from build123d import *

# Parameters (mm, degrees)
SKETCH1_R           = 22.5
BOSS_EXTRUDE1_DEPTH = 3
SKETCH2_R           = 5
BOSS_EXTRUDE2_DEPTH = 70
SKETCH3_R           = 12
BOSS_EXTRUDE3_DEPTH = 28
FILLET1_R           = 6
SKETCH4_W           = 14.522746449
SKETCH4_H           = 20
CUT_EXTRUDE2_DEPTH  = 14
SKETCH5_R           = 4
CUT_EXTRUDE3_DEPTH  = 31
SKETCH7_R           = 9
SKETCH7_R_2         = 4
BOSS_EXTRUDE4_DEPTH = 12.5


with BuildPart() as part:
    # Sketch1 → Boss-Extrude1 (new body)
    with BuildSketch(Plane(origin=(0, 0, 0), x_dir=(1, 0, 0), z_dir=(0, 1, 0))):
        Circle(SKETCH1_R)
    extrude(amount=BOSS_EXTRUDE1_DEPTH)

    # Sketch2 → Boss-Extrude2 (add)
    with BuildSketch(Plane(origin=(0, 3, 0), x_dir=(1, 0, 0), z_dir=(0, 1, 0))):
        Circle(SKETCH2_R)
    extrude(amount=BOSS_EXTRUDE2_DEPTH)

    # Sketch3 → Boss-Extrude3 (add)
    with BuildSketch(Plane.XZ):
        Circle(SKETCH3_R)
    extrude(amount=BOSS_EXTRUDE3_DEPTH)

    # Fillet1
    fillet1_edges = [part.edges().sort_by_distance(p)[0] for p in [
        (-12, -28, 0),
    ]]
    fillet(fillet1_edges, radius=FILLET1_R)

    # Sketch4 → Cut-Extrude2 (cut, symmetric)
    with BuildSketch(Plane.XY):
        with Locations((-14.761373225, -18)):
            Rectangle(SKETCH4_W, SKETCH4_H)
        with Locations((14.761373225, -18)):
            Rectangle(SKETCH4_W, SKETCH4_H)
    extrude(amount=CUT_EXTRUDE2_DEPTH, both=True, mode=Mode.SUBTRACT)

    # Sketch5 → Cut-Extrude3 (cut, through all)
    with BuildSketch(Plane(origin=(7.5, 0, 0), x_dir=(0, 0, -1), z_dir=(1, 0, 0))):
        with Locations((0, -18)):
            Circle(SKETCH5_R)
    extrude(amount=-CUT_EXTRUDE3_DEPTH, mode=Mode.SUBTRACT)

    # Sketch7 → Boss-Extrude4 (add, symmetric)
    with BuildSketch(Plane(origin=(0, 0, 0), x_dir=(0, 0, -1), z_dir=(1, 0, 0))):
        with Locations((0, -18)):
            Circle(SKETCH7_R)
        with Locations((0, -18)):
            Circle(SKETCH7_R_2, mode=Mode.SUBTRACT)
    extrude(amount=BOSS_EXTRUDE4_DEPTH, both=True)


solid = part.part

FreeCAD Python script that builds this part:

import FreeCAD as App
import Part
import Sketcher
Q = App.Units.Quantity


def edges_at(feature, points):
    """Names of the edges that pass closest to the given points."""
    edges = feature.Shape.Edges
    near = lambda p: min(range(len(edges)), key=lambda i: edges[i].distToShape(Part.Vertex(*p))[0])
    return sorted({f"Edge{near(p) + 1}" for p in points})

doc = App.newDocument("Part")
body = doc.addObject("PartDesign::Body", "Body")

sketch1 = doc.addObject("Sketcher::SketchObject", "Sketch")
body.addObject(sketch1)
sketch1.AttachmentSupport = (doc.XZ_Plane, [""])
sketch1.MapMode = "FlatFace"
sketch1.addGeometry(Part.Circle(App.Vector(0, 0, 0), App.Vector(0, 0, 1), 22), False)
sketch1.addConstraint(Sketcher.Constraint("Coincident", 0, 3, -1, 1))
sketch1.addConstraint(Sketcher.Constraint("Diameter", 0, Q("45 mm")))
pad1 = doc.addObject("PartDesign::Pad", "Pad")
body.addObject(pad1)
pad1.Profile = sketch1
pad1.Length = 3
pad1.Reversed = True

sketch2 = doc.addObject("Sketcher::SketchObject", "Sketch001")
body.addObject(sketch2)
sketch2.AttachmentSupport = (doc.XZ_Plane, [""])
sketch2.MapMode = "FlatFace"
sketch2.AttachmentOffset = App.Placement(App.Vector(0, 0, -3), App.Rotation())
sketch2.addGeometry(Part.Circle(App.Vector(0, 0, 0), App.Vector(0, 0, 1), 5), False)
sketch2.addConstraint(Sketcher.Constraint("Coincident", 0, 3, -1, 1))
sketch2.addConstraint(Sketcher.Constraint("Diameter", 0, Q("10 mm")))
pad2 = doc.addObject("PartDesign::Pad", "Pad001")
body.addObject(pad2)
pad2.Profile = sketch2
pad2.Length = 70
pad2.Reversed = True

sketch3 = doc.addObject("Sketcher::SketchObject", "Sketch002")
body.addObject(sketch3)
sketch3.AttachmentSupport = (doc.XZ_Plane, [""])
sketch3.MapMode = "FlatFace"
sketch3.addGeometry(Part.Circle(App.Vector(0, 0, 0), App.Vector(0, 0, 1), 12), False)
sketch3.addConstraint(Sketcher.Constraint("Coincident", 0, 3, -1, 1))
sketch3.addConstraint(Sketcher.Constraint("Diameter", 0, Q("24 mm")))
pad3 = doc.addObject("PartDesign::Pad", "Pad002")
body.addObject(pad3)
pad3.Profile = sketch3
pad3.Length = 28
doc.recompute()

fillet = doc.addObject("PartDesign::Fillet", "Fillet")
body.addObject(fillet)
fillet.Base = (pad3, edges_at(pad3, [(-12, -28, 0)]))
fillet.Radius = 6

sketch4 = doc.addObject("Sketcher::SketchObject", "Sketch003")
body.addObject(sketch4)
sketch4.AttachmentSupport = (doc.XY_Plane, [""])
sketch4.MapMode = "FlatFace"
sketch4.addGeometry(Part.LineSegment(App.Vector(-22, -8, 0), App.Vector(-22, -28, 0)), False)
sketch4.addGeometry(Part.LineSegment(App.Vector(-22, -28, 0), App.Vector(-8, -28, 0)), False)
sketch4.addGeometry(Part.LineSegment(App.Vector(-8, -28, 0), App.Vector(-8, -8, 0)), False)
sketch4.addGeometry(Part.LineSegment(App.Vector(-8, -8, 0), App.Vector(-22, -8, 0)), False)
sketch4.addGeometry(Part.LineSegment(App.Vector(8, -8, 0), App.Vector(8, -28, 0)), False)
sketch4.addGeometry(Part.LineSegment(App.Vector(8, -28, 0), App.Vector(22, -28, 0)), False)
sketch4.addGeometry(Part.LineSegment(App.Vector(22, -28, 0), App.Vector(22, -8, 0)), False)
sketch4.addGeometry(Part.LineSegment(App.Vector(22, -8, 0), App.Vector(8, -8, 0)), False)
sketch4.addConstraint(Sketcher.Constraint("Coincident", 0, 2, 1, 1))
sketch4.addConstraint(Sketcher.Constraint("Coincident", 1, 2, 2, 1))
sketch4.addConstraint(Sketcher.Constraint("Coincident", 2, 2, 3, 1))
sketch4.addConstraint(Sketcher.Constraint("Coincident", 3, 2, 0, 1))
sketch4.addConstraint(Sketcher.Constraint("Coincident", 4, 2, 5, 1))
sketch4.addConstraint(Sketcher.Constraint("Coincident", 5, 2, 6, 1))
sketch4.addConstraint(Sketcher.Constraint("Coincident", 6, 2, 7, 1))
sketch4.addConstraint(Sketcher.Constraint("Coincident", 7, 2, 4, 1))
sketch4.addConstraint(Sketcher.Constraint("Vertical", 0))
sketch4.addConstraint(Sketcher.Constraint("Horizontal", 1))
sketch4.addConstraint(Sketcher.Constraint("Vertical", 2))
sketch4.addConstraint(Sketcher.Constraint("Horizontal", 3))
sketch4.addConstraint(Sketcher.Constraint("Vertical", 4))
sketch4.addConstraint(Sketcher.Constraint("Horizontal", 5))
sketch4.addConstraint(Sketcher.Constraint("Vertical", 6))
sketch4.addConstraint(Sketcher.Constraint("Horizontal", 7))
sketch4.addConstraint(Sketcher.Constraint("Symmetric", 1, 2, 4, 2, -2))
sketch4.addConstraint(Sketcher.Constraint("Symmetric", 3, 2, 6, 2, -2))
sketch4.addConstraint(Sketcher.Constraint("DistanceY", 0, 2, 0, 1, Q("20 mm")))
sketch4.addConstraint(Sketcher.Constraint("DistanceY", 0, 2, -1, 1, Q("28 mm")))
sketch4.addConstraint(Sketcher.Constraint("DistanceX", 1, 2, 4, 2, Q("15 mm")))
sketch4.addConstraint(Sketcher.Constraint("DistanceX", 1, 1, 1, 2, Q("14.522746 mm")))
pocket1 = doc.addObject("PartDesign::Pocket", "Pocket")
body.addObject(pocket1)
pocket1.Profile = sketch4
pocket1.Length = 28
pocket1.Midplane = True

sketch5 = doc.addObject("Sketcher::SketchObject", "Sketch004")
body.addObject(sketch5)
sketch5.AttachmentSupport = (doc.YZ_Plane, [""])
sketch5.MapMode = "FlatFace"
sketch5.AttachmentOffset = App.Placement(App.Vector(0, 0, 7.5), App.Rotation())
sketch5.addGeometry(Part.Circle(App.Vector(-18, 0, 0), App.Vector(0, 0, 1), 4), False)
sketch5.addConstraint(Sketcher.Constraint("PointOnObject", 0, 3, -1))
sketch5.addConstraint(Sketcher.Constraint("Diameter", 0, Q("8 mm")))
sketch5.addConstraint(Sketcher.Constraint("DistanceX", 0, 3, -1, 1, Q("18 mm")))
pocket2 = doc.addObject("PartDesign::Pocket", "Pocket001")
body.addObject(pocket2)
pocket2.Profile = sketch5
pocket2.Type = "ThroughAll"

sketch6 = doc.addObject("Sketcher::SketchObject", "Sketch005")
body.addObject(sketch6)
sketch6.AttachmentSupport = (doc.YZ_Plane, [""])
sketch6.MapMode = "FlatFace"
sketch6.addGeometry(Part.Circle(App.Vector(-18, 0, 0), App.Vector(0, 0, 1), 9), False)
sketch6.addGeometry(Part.Circle(App.Vector(-18, 0, 0), App.Vector(0, 0, 1), 4), False)
sketch6.addConstraint(Sketcher.Constraint("Coincident", 1, 3, 0, 3))
sketch6.addConstraint(Sketcher.Constraint("PointOnObject", 0, 3, -1))
sketch6.addConstraint(Sketcher.Constraint("Diameter", 0, Q("18 mm")))
sketch6.addConstraint(Sketcher.Constraint("Diameter", 1, Q("8 mm")))
sketch6.addConstraint(Sketcher.Constraint("DistanceX", 0, 3, -1, 1, Q("18 mm")))
pad4 = doc.addObject("PartDesign::Pad", "Pad003")
body.addObject(pad4)
pad4.Profile = sketch6
pad4.Length = 25
pad4.Midplane = True

doc.recompute()
